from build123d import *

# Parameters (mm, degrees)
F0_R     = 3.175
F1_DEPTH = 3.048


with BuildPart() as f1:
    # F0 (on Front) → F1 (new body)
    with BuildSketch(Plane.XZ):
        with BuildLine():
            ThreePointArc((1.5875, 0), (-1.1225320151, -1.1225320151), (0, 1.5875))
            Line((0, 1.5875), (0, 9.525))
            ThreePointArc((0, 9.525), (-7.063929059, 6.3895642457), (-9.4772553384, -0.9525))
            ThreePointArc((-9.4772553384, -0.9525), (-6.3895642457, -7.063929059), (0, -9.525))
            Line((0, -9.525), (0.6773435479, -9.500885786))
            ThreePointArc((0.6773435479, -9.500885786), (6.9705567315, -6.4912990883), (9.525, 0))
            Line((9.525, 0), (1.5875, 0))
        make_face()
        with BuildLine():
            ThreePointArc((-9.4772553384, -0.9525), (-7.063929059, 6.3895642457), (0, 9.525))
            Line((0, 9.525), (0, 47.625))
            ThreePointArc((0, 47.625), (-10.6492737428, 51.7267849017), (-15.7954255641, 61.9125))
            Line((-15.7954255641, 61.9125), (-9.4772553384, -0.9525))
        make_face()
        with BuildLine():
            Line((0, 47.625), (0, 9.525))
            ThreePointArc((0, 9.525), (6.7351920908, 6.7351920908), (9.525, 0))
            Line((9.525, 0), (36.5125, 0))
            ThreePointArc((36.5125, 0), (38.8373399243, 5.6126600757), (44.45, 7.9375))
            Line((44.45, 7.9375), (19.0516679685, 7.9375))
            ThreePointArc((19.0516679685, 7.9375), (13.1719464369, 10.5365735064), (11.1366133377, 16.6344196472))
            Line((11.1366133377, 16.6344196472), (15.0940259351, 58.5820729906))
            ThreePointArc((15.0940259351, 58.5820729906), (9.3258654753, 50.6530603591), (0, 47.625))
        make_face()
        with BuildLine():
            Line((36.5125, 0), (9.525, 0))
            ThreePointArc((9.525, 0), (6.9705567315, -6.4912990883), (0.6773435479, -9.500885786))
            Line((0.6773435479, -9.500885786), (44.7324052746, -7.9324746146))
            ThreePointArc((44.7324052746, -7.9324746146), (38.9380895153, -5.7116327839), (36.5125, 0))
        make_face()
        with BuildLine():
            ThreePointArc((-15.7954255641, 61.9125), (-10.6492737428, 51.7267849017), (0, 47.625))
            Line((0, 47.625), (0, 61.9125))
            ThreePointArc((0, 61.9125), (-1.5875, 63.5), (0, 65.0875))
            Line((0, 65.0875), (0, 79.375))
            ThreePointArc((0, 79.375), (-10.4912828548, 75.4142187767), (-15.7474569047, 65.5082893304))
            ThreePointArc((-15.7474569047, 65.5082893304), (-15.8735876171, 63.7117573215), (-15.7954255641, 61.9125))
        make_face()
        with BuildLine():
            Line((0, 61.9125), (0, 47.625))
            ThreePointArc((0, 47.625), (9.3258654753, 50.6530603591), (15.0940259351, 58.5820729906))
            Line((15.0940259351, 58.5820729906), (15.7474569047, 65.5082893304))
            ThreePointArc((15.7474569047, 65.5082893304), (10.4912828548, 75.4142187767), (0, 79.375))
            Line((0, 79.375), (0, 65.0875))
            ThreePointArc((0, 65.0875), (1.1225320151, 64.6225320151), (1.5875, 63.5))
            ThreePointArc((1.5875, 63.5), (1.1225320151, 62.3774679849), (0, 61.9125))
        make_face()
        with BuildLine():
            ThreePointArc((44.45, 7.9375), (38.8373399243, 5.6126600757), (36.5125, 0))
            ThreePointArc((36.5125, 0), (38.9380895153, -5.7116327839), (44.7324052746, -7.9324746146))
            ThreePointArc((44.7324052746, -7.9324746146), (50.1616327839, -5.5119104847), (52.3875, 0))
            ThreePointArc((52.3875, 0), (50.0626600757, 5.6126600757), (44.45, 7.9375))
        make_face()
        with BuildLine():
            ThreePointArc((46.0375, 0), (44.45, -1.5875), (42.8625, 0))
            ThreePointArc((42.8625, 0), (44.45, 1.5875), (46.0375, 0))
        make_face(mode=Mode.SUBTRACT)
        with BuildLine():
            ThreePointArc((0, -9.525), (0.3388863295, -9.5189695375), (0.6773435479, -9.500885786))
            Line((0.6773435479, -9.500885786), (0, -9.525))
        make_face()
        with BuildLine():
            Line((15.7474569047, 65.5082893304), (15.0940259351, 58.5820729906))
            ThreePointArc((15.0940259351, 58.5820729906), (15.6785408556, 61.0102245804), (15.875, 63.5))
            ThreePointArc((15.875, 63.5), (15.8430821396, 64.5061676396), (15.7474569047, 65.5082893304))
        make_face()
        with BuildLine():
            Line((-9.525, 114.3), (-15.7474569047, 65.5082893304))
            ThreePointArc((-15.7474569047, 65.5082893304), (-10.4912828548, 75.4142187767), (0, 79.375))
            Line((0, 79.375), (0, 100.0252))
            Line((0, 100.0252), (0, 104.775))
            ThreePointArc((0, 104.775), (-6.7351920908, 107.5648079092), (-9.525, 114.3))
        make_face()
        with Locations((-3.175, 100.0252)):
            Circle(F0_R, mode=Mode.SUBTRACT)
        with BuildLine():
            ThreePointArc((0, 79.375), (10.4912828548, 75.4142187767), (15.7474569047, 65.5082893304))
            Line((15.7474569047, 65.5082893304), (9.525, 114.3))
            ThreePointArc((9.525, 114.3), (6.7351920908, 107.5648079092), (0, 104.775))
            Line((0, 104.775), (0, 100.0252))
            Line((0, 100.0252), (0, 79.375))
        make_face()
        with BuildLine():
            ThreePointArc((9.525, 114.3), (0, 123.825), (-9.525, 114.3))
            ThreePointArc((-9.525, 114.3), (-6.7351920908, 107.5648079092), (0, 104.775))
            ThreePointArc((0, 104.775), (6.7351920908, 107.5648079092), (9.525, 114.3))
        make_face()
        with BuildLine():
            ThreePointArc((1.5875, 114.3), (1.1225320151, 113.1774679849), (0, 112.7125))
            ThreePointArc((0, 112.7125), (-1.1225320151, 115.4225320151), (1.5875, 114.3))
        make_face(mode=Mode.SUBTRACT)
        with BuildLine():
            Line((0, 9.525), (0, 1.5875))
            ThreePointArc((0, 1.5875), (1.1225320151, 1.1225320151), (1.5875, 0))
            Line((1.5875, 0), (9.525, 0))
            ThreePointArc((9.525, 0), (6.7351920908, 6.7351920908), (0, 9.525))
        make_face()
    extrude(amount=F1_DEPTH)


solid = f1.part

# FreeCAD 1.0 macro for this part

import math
import FreeCAD as App
import Part
import Sketcher
from FreeCAD import Vector
Q = App.Units.Quantity

doc = App.newDocument("Part")
body = doc.addObject("PartDesign::Body", "Body")

# Sketch on XZ plane
sketch1 = body.newObject("Sketcher::SketchObject", "Sketch")
sketch1.AttachmentSupport = (doc.getObject("XZ_Plane"), [""])
sketch1.MapMode = "FlatFace"
sketch1.addGeometry(Part.ArcOfCircle(Part.Circle(Vector(0, 63.5, 0), Vector(0, 0, 1), 15.875), math.radians(172.732242), math.radians(185.73917)), False)
sketch1.addGeometry(Part.LineSegment(Vector(-15.795426, 61.9125, 0), Vector(-9.477255, -0.9525, 0)), False)
sketch1.addGeometry(Part.ArcOfCircle(Part.Circle(Vector(0, 0, 0), Vector(0, 0, 1), 9.525), math.radians(-174.26083), math.radians(-90)), False)
sketch1.addGeometry(Part.ArcOfCircle(Part.Circle(Vector(0, 0, 0), Vector(0, 0, 1), 9.525), math.radians(-90), math.radians(-85.92213)), False)
sketch1.addGeometry(Part.LineSegment(Vector(0.677344, -9.500886, 0), Vector(44.732405, -7.932475, 0)), False)
sketch1.addGeometry(Part.ArcOfCircle(Part.Circle(Vector(44.45, 0, 0), Vector(0, 0, 1), 7.9375), math.radians(-87.961065), math.radians(90)), False)
sketch1.addGeometry(Part.LineSegment(Vector(44.45, 7.9375, 0), Vector(19.051668, 7.9375, 0)), False)
sketch1.addGeometry(Part.ArcOfCircle(Part.Circle(Vector(19.051668, 15.8877, 0), Vector(0, 0, 1), 7.9502), math.radians(174.610571), math.radians(270)), False)
sketch1.addGeometry(Part.LineSegment(Vector(11.136613, 16.63442, 0), Vector(15.094026, 58.582073, 0)), False)
sketch1.addGeometry(Part.ArcOfCircle(Part.Circle(Vector(0, 63.5, 0), Vector(0, 0, 1), 15.875), math.radians(-18.046616), math.radians(0)), False)
sketch1.addGeometry(Part.ArcOfCircle(Part.Circle(Vector(0, 63.5, 0), Vector(0, 0, 1), 15.875), math.radians(0), math.radians(7.267758)), False)
sketch1.addGeometry(Part.LineSegment(Vector(15.747457, 65.508289, 0), Vector(9.525, 114.3, 0)), False)
sketch1.addGeometry(Part.ArcOfCircle(Part.Circle(Vector(0, 114.3, 0), Vector(0, 0, 1), 9.525), math.radians(0), math.radians(180)), False)
sketch1.addGeometry(Part.LineSegment(Vector(-9.525, 114.3, 0), Vector(-15.747457, 65.508289, 0)), False)
sketch1.addGeometry(Part.ArcOfCircle(Part.Circle(Vector(0, 0, 0), Vector(0, 0, 1), 1.5875), math.radians(90), math.radians(360)), False)
sketch1.addGeometry(Part.ArcOfCircle(Part.Circle(Vector(0, 0, 0), Vector(0, 0, 1), 1.5875), math.radians(0), math.radians(90)), False)
sketch1.addGeometry(Part.Circle(Vector(44.45, 0, 0), Vector(0, 0, 1), 1.5875), False)
sketch1.addGeometry(Part.ArcOfCircle(Part.Circle(Vector(0, 63.5, 0), Vector(0, 0, 1), 1.5875), math.radians(90), math.radians(270)), False)
sketch1.addGeometry(Part.ArcOfCircle(Part.Circle(Vector(0, 63.5, 0), Vector(0, 0, 1), 1.5875), math.radians(0), math.radians(90)), False)
sketch1.addGeometry(Part.ArcOfCircle(Part.Circle(Vector(0, 63.5, 0), Vector(0, 0, 1), 1.5875), math.radians(-90), math.radians(0)), False)
sketch1.addGeometry(Part.Circle(Vector(-3.175, 100.0252, 0), Vector(0, 0, 1), 3.175), False)
sketch1.addGeometry(Part.ArcOfCircle(Part.Circle(Vector(0, 114.3, 0), Vector(0, 0, 1), 1.5875), math.radians(0), math.radians(270)), False)
sketch1.addGeometry(Part.ArcOfCircle(Part.Circle(Vector(0, 114.3, 0), Vector(0, 0, 1), 1.5875), math.radians(-90), math.radians(0)), False)
sketch1.addConstraint(Sketcher.Constraint("Tangent", 0, 2, 1, 1))
sketch1.addConstraint(Sketcher.Constraint("Tangent", 1, 2, 2, 1))
sketch1.addConstraint(Sketcher.Constraint("Tangent", 2, 2, 3, 1))
sketch1.addConstraint(Sketcher.Constraint("Coincident", 3, 2, 4, 1))
sketch1.addConstraint(Sketcher.Constraint("Tangent", 4, 2, 5, 1))
sketch1.addConstraint(Sketcher.Constraint("Tangent", 5, 2, 6, 1))
sketch1.addConstraint(Sketcher.Constraint("Tangent", 6, 2, 7, 2))
sketch1.addConstraint(Sketcher.Constraint("Tangent", 7, 1, 8, 1))
sketch1.addConstraint(Sketcher.Constraint("Coincident", 8, 2, 9, 1))
sketch1.addConstraint(Sketcher.Constraint("Tangent", 9, 2, 10, 1))
sketch1.addConstraint(Sketcher.Constraint("Tangent", 10, 2, 11, 1))
sketch1.addConstraint(Sketcher.Constraint("Coincident", 11, 2, 12, 1))
sketch1.addConstraint(Sketcher.Constraint("Coincident", 12, 2, 13, 1))
sketch1.addConstraint(Sketcher.Constraint("Tangent", 13, 2, 0, 1))
sketch1.addConstraint(Sketcher.Constraint("Tangent", 14, 1, 15, 2))
sketch1.addConstraint(Sketcher.Constraint("Coincident", 15, 1, 14, 2))
sketch1.addConstraint(Sketcher.Constraint("Tangent", 17, 1, 18, 2))
sketch1.addConstraint(Sketcher.Constraint("Tangent", 18, 1, 19, 2))
sketch1.addConstraint(Sketcher.Constraint("Tangent", 19, 1, 17, 2))
sketch1.addConstraint(Sketcher.Constraint("Tangent", 21, 1, 22, 2))
sketch1.addConstraint(Sketcher.Constraint("Coincident", 22, 1, 21, 2))
sketch1.addConstraint(Sketcher.Constraint("Horizontal", 6))
sketch1.addConstraint(Sketcher.Constraint("Coincident", 2, 3, -1, 1))
sketch1.addConstraint(Sketcher.Constraint("Coincident", 14, 3, -1, 1))
sketch1.addConstraint(Sketcher.Constraint("Coincident", 9, 3, 0, 3))
sketch1.addConstraint(Sketcher.Constraint("Coincident", 16, 3, 5, 3))
sketch1.addConstraint(Sketcher.Constraint("Coincident", 17, 3, 0, 3))
sketch1.addConstraint(Sketcher.Constraint("Coincident", 21, 3, 12, 3))
sketch1.addConstraint(Sketcher.Constraint("Equal", 2, 3))
sketch1.addConstraint(Sketcher.Constraint("Equal", 0, 9))
sketch1.addConstraint(Sketcher.Constraint("Equal", 9, 10))
sketch1.addConstraint(Sketcher.Constraint("Equal", 3, 12))
sketch1.addConstraint(Sketcher.Constraint("Equal", 15, 16))
sketch1.addConstraint(Sketcher.Constraint("Equal", 16, 17))
sketch1.addConstraint(Sketcher.Constraint("Equal", 19, 21))
sketch1.addConstraint(Sketcher.Constraint("Symmetric", 11, 2, 12, 2, -2))
sketch1.addConstraint(Sketcher.Constraint("PointOnObject", 0, 3, -2))
sketch1.addConstraint(Sketcher.Constraint("PointOnObject", 5, 3, -1))
sketch1.addConstraint(Sketcher.Constraint("PointOnObject", 2, 2, -2))
sketch1.addConstraint(Sketcher.Constraint("PointOnObject", 14, 1, -2))
sketch1.addConstraint(Sketcher.Constraint("PointOnObject", 15, 1, -1))
sketch1.addConstraint(Sketcher.Constraint("PointOnObject", 17, 1, -2))
sketch1.addConstraint(Sketcher.Constraint("PointOnObject", 19, 1, -2))
sketch1.addConstraint(Sketcher.Constraint("PointOnObject", 22, 1, -2))
sketch1.addConstraint(Sketcher.Constraint("Horizontal", 19, 3, 9, 2))
sketch1.addConstraint(Sketcher.Constraint("Horizontal", 22, 3, 11, 2))
sketch1.addConstraint(Sketcher.Constraint("Horizontal", 9, 2, 18, 1))
sketch1.addConstraint(Sketcher.Constraint("Horizontal", 0, 2, 19, 1))
sketch1.addConstraint(Sketcher.Constraint("Horizontal", 12, 2, 21, 1))
sketch1.addConstraint(Sketcher.Constraint("Diameter", 20, Q("0.25 in")))
sketch1.addConstraint(Sketcher.Constraint("Diameter", 16, Q("0.125 in")))
sketch1.addConstraint(Sketcher.Constraint("Radius", 0, Q("0.625 in")))
sketch1.addConstraint(Sketcher.Constraint("Radius", 2, Q("0.375 in")))
sketch1.addConstraint(Sketcher.Constraint("Radius", 5, Q("0.3125 in")))
sketch1.addConstraint(Sketcher.Constraint("Radius", 7, Q("0.313 in")))
sketch1.addConstraint(Sketcher.Constraint("DistanceY", 10, 3, 12, 3, Q("2 in")))
sketch1.addConstraint(Sketcher.Constraint("DistanceX", 20, 3, 11, 2, Q("0.5 in")))
sketch1.addConstraint(Sketcher.Constraint("DistanceX", -1, 1, 5, 3, Q("1.75 in")))
sketch1.addConstraint(Sketcher.Constraint("DistanceY", -1, 1, 20, 3, Q("3.938 in")))
sketch1.addConstraint(Sketcher.Constraint("Distance", 4, Q("44.082972 mm")))
sketch1.addConstraint(Sketcher.Constraint("DistanceX", 6, 2, 6, 1, Q("25.398332 mm")))
sketch1.addConstraint(Sketcher.Constraint("DistanceY", -1, 1, 7, 1, Q("16.63442 mm")))
pad1 = body.newObject("PartDesign::Pad", "Pad")
pad1.Profile = sketch1
pad1.Length = Q("0.12 in")

doc.recompute()
